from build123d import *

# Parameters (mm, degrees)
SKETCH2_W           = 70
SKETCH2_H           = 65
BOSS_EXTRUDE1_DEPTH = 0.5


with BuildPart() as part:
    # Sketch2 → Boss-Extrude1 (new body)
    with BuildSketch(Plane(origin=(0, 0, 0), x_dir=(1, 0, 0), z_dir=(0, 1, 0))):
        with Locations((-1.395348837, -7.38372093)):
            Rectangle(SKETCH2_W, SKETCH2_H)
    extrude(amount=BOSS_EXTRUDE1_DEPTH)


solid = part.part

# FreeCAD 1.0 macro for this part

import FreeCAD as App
import Part
import Sketcher
from FreeCAD import Vector


def add_polygon(sketch, points):
    """Adds a closed chain of lines whose ends are joined by coincident constraints."""
    first, n = sketch.GeometryCount, len(points)
    for a, b in zip(points, points[1:] + points[:1]):
        sketch.addGeometry(Part.LineSegment(App.Vector(*a, 0), App.Vector(*b, 0)), False)
    for i in range(n):
        sketch.addConstraint(Sketcher.Constraint("Coincident", first + i, 2, first + (i + 1) % n, 1))

doc = App.newDocument("Part")
body = doc.addObject("PartDesign::Body", "Body")

# Sketch on XZ plane
sketch1 = doc.addObject("Sketcher::SketchObject", "Sketch")
body.addObject(sketch1)
sketch1.AttachmentSupport = (doc.XZ_Plane, [""])
sketch1.MapMode = "FlatFace"
add_polygon(sketch1, [(-36, -25), (-36, 40), (34, 40), (34, -25)])  # lines 0-3
sketch1.addConstraint([
    Sketcher.Constraint("Vertical", 0),
    Sketcher.Constraint("Horizontal", 1),
    Sketcher.Constraint("Vertical", 2),
    Sketcher.Constraint("Horizontal", 3),
    Sketcher.Constraint("DistanceX", 1, 1, 1, 2, 70.0),
    Sketcher.Constraint("DistanceY", 0, 1, 0, 2, 65.0),
    Sketcher.Constraint("DistanceX", 0, 2, -1, 1, 36.395349),
    Sketcher.Constraint("DistanceY", -1, 1, 0, 2, 39.883721),
])
pad1 = doc.addObject("PartDesign::Pad", "Pad")
body.addObject(pad1)
pad1.Profile = sketch1
pad1.Length = 0.5
pad1.Reversed = True

doc.recompute()
